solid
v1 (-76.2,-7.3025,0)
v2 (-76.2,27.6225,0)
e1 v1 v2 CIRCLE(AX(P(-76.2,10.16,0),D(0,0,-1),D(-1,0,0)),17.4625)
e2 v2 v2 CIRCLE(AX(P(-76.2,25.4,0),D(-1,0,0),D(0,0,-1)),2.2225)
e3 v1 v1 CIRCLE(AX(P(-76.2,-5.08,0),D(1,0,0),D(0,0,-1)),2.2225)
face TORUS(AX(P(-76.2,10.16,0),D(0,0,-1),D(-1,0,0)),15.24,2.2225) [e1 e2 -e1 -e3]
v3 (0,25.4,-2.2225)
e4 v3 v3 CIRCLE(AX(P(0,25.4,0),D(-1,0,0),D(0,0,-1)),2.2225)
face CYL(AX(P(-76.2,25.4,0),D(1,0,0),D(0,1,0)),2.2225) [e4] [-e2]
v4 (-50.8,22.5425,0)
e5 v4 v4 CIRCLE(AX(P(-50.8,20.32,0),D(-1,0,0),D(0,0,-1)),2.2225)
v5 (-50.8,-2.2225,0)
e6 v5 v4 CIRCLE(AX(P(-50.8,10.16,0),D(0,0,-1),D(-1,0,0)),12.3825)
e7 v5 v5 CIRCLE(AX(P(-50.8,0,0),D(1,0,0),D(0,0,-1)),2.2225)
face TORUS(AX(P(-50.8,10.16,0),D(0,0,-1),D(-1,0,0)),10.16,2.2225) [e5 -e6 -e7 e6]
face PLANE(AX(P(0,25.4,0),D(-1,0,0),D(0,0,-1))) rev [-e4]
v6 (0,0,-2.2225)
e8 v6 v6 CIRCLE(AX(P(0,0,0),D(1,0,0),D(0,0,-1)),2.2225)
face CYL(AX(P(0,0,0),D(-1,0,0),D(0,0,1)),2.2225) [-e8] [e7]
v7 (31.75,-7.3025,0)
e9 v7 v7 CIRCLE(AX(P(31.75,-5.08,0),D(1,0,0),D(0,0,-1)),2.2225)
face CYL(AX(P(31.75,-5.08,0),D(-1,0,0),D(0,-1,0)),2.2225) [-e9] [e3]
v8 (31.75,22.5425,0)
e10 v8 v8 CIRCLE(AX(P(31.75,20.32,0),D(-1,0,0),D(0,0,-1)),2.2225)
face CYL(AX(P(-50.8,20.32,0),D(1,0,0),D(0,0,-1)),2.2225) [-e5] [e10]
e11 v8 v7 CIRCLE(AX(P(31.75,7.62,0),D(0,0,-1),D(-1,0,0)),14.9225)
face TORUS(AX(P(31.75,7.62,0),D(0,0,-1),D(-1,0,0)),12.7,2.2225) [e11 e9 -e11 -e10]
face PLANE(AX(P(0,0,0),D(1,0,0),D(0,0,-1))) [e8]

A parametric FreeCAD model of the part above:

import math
import FreeCAD as App
import Part
import Sketcher
Q = App.Units.Quantity

doc = App.newDocument("Part")
body = doc.addObject("PartDesign::Body", "Body")

sketch1 = body.newObject("Sketcher::SketchObject", "Sketch")
sketch1.AttachmentSupport = (doc.getObject("YZ_Plane"), [""])
sketch1.MapMode = "FlatFace"
sketch1.addGeometry(Part.Circle(App.Vector(0, 0, 0), App.Vector(0, 0, 1), 2.2), False)
sketch1.addConstraint(Sketcher.Constraint("Coincident", 0, 3, -1, 1))
sketch1.addConstraint(Sketcher.Constraint("Diameter", 0, Q("0.175 in")))

sketch2 = body.newObject("Sketcher::SketchObject", "Sketch001")
sketch2.AttachmentSupport = (doc.getObject("XY_Plane"), [""])
sketch2.MapMode = "FlatFace"
sketch2.addGeometry(Part.LineSegment(App.Vector(0, 0, 0), App.Vector(-51, 0, 0)), False)
sketch2.addGeometry(Part.ArcOfCircle(Part.Circle(App.Vector(-51, 10, 0), App.Vector(0, 0, 1), 10), math.radians(90), math.radians(270)), False)
sketch2.addGeometry(Part.LineSegment(App.Vector(-51, 20, 0), App.Vector(32, 20, 0)), False)
sketch2.addGeometry(Part.ArcOfCircle(Part.Circle(App.Vector(32, 8, 0), App.Vector(0, 0, 1), 13), math.radians(-90), math.radians(90)), False)
sketch2.addGeometry(Part.LineSegment(App.Vector(32, -5, 0), App.Vector(-76, -5, 0)), False)
sketch2.addGeometry(Part.ArcOfCircle(Part.Circle(App.Vector(-76, 10, 0), App.Vector(0, 0, 1), 15), math.radians(90), math.radians(270)), False)
sketch2.addGeometry(Part.LineSegment(App.Vector(-76, 25, 0), App.Vector(0, 25, 0)), False)
sketch2.addConstraint(Sketcher.Constraint("Tangent", 0, 2, 1, 2))
sketch2.addConstraint(Sketcher.Constraint("Tangent", 1, 1, 2, 1))
sketch2.addConstraint(Sketcher.Constraint("Tangent", 2, 2, 3, 2))
sketch2.addConstraint(Sketcher.Constraint("Tangent", 3, 1, 4, 1))
sketch2.addConstraint(Sketcher.Constraint("Tangent", 4, 2, 5, 2))
sketch2.addConstraint(Sketcher.Constraint("Tangent", 5, 1, 6, 1))
sketch2.addConstraint(Sketcher.Constraint("Horizontal", 0))
sketch2.addConstraint(Sketcher.Constraint("Horizontal", 2))
sketch2.addConstraint(Sketcher.Constraint("Horizontal", 4))
sketch2.addConstraint(Sketcher.Constraint("Horizontal", 6))
sketch2.addConstraint(Sketcher.Constraint("Coincident", 0, 1, -1, 1))
sketch2.addConstraint(Sketcher.Constraint("PointOnObject", 6, 2, -2))
sketch2.addConstraint(Sketcher.Constraint("Horizontal", 1, 3, 5, 3))
sketch2.addConstraint(Sketcher.Constraint("Radius", 1, Q("0.4 in")))
sketch2.addConstraint(Sketcher.Constraint("Radius", 3, Q("0.5 in")))
sketch2.addConstraint(Sketcher.Constraint("DistanceX", 0, 2, 0, 1, Q("2 in")))
sketch2.addConstraint(Sketcher.Constraint("DistanceX", 6, 1, 6, 2, Q("3 in")))
sketch2.addConstraint(Sketcher.Constraint("DistanceX", 2, 1, 2, 2, Q("3.25 in")))
doc.recompute()

additivepipe = body.newObject("PartDesign::AdditivePipe", "AdditivePipe")
additivepipe.Profile = sketch1
additivepipe.Spine = (sketch2, ["Edge1", "Edge2", "Edge3", "Edge4", "Edge5", "Edge6", "Edge7"])

doc.recompute()
